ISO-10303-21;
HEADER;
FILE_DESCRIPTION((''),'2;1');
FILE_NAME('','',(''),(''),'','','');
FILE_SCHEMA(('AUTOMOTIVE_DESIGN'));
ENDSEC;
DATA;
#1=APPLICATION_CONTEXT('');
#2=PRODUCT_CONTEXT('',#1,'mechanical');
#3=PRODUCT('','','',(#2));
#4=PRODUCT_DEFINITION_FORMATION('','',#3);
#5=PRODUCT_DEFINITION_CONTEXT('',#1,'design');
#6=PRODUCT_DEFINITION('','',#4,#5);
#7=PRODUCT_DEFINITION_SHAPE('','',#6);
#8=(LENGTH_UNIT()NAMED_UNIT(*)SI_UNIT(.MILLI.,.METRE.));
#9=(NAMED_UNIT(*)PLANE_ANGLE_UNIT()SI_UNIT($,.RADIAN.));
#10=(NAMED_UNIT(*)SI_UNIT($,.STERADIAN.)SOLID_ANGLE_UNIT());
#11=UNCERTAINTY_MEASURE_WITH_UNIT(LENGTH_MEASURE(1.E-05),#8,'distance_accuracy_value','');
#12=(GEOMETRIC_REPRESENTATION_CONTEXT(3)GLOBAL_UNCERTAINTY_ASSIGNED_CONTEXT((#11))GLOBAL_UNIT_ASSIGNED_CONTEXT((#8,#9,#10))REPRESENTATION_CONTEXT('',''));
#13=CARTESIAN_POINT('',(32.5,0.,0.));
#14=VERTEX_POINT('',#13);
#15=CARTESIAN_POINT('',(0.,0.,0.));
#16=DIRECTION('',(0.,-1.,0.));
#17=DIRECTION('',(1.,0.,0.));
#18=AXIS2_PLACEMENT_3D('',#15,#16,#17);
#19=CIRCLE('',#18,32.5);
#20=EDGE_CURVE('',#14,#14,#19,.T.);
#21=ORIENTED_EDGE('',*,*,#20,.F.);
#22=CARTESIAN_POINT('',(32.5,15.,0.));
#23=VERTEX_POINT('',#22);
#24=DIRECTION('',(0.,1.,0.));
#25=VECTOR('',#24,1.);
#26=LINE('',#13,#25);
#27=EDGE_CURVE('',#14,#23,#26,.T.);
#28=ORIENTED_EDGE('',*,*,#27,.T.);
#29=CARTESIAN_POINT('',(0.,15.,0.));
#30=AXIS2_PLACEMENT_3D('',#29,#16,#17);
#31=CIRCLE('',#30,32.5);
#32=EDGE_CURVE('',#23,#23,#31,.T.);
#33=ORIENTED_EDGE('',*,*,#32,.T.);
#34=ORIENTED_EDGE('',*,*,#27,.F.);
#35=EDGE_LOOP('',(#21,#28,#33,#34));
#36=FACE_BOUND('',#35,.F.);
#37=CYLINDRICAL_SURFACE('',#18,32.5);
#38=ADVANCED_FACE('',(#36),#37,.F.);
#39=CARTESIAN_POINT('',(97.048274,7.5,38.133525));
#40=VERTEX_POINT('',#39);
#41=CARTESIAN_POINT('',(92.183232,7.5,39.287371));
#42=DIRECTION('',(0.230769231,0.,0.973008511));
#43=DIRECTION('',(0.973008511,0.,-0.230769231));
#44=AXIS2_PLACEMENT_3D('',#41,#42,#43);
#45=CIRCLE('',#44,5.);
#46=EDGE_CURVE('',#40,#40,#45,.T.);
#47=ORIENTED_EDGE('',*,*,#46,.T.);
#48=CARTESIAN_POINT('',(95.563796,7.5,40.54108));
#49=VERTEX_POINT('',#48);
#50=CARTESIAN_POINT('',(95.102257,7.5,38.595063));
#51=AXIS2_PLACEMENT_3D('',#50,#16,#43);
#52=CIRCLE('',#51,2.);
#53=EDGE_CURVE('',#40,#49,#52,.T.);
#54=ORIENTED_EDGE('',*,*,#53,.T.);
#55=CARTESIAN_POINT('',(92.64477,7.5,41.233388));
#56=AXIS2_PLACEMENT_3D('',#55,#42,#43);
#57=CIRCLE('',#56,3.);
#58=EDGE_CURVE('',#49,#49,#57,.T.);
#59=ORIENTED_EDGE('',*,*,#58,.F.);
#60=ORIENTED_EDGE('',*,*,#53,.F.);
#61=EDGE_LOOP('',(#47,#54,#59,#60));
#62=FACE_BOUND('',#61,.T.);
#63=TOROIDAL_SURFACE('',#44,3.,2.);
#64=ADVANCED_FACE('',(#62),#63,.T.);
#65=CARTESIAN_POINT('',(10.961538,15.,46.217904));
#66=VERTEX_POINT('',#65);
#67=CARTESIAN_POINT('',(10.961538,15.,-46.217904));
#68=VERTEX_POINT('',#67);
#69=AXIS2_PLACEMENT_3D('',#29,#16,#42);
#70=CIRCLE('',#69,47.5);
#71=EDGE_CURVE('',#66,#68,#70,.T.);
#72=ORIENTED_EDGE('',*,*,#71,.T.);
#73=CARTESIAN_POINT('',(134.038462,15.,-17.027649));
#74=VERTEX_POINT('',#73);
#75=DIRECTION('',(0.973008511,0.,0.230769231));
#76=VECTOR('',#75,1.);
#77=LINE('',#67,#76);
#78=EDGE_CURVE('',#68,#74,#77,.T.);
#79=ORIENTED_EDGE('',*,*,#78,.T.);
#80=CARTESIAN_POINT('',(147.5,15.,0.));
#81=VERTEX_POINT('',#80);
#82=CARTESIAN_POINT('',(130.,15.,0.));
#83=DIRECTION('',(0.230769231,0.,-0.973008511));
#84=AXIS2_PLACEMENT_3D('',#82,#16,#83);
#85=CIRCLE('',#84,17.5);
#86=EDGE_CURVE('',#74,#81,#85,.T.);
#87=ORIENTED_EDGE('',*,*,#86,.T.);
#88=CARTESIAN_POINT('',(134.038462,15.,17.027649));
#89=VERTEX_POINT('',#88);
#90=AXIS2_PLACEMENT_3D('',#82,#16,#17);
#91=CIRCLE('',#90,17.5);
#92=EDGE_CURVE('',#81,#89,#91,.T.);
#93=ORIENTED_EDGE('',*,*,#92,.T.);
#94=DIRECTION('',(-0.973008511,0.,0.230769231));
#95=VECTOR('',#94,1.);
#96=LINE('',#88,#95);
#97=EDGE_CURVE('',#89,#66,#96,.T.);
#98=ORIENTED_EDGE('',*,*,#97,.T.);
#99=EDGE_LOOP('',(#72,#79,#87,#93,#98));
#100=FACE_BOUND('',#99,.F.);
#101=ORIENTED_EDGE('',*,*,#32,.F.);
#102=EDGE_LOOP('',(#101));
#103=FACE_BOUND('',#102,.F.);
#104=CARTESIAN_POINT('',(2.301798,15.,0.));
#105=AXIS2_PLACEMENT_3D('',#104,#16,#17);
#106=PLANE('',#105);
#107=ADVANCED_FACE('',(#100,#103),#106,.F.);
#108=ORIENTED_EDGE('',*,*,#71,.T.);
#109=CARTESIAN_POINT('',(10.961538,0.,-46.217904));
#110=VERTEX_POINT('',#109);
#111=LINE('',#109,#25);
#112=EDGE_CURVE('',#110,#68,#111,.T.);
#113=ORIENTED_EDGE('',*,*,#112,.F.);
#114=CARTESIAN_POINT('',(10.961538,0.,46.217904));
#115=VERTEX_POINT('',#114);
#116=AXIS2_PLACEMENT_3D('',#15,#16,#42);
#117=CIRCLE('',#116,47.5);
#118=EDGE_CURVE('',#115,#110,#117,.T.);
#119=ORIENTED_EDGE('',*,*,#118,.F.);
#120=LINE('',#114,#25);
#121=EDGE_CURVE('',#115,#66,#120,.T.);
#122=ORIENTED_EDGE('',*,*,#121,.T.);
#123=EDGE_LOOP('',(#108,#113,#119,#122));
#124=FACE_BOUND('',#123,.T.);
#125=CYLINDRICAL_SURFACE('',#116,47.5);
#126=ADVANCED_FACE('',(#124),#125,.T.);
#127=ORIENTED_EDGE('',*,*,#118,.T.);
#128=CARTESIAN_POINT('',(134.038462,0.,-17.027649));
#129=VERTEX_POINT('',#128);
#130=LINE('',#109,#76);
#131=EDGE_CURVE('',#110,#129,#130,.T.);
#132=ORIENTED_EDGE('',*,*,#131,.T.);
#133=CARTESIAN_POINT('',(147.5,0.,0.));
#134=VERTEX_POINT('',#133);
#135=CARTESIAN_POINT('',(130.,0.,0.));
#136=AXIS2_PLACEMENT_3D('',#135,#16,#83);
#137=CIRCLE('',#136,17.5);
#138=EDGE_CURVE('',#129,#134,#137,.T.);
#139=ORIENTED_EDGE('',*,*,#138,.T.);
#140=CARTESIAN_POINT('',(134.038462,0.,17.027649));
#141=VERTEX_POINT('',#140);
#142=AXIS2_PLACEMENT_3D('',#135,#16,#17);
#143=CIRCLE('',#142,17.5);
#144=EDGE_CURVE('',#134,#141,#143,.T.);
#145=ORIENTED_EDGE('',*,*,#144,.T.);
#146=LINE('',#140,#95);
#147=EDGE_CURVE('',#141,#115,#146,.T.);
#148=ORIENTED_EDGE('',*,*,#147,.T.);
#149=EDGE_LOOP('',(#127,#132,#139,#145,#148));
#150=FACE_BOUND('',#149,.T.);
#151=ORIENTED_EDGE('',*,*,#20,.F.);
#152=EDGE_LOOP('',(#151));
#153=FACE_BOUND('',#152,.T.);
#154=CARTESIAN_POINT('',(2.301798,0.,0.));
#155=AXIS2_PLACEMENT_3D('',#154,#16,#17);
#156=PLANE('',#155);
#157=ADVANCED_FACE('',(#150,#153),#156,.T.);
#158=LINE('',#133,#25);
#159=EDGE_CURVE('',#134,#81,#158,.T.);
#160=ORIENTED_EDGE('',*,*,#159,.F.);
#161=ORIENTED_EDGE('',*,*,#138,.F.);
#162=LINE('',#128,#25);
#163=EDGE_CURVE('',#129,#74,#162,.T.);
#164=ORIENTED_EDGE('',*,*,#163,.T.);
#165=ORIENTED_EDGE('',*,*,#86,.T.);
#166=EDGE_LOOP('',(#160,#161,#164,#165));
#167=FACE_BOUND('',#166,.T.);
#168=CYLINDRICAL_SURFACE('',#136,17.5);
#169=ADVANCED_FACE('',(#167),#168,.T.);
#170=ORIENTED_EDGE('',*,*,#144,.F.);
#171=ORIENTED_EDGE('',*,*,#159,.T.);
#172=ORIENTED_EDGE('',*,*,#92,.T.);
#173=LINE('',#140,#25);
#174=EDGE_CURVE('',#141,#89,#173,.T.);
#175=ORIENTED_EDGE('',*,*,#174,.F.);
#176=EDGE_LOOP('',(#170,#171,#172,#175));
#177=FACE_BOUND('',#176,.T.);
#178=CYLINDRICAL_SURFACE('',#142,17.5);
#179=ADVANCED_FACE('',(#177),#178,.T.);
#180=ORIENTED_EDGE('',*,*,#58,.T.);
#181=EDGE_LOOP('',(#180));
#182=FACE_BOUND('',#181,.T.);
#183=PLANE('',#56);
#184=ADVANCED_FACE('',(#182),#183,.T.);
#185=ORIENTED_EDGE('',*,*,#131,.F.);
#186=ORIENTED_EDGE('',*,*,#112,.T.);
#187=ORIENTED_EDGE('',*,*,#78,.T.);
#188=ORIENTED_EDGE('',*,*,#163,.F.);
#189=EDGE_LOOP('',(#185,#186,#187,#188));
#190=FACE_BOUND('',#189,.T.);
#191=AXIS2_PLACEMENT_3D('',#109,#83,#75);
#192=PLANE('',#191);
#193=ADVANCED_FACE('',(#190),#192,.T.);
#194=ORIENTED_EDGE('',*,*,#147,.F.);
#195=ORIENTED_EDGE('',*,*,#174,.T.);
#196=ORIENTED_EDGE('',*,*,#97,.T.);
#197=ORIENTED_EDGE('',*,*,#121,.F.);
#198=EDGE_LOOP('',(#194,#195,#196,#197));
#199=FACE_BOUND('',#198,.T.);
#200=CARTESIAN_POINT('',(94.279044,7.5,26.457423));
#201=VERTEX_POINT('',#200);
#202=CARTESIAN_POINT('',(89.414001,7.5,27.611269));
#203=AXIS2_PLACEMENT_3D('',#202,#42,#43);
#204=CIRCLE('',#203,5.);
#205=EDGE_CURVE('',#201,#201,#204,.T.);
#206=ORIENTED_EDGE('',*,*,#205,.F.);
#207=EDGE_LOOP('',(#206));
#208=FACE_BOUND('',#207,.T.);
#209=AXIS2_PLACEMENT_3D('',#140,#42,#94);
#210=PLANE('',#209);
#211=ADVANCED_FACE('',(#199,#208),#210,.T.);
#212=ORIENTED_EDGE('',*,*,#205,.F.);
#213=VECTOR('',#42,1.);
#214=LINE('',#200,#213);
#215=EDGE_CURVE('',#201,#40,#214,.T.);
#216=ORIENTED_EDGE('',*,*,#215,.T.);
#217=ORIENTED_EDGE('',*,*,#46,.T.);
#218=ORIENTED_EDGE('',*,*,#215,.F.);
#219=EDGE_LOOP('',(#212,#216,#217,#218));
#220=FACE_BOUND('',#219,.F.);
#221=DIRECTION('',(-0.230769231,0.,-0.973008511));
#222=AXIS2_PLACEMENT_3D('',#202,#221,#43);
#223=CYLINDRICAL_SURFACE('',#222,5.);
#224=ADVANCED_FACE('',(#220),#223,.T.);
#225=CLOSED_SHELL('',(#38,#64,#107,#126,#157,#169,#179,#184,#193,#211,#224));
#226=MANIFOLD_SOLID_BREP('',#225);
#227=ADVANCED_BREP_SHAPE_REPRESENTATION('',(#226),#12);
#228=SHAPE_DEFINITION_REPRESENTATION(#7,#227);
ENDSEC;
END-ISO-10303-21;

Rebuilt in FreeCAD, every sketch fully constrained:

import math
import FreeCAD as App
import Part
import Sketcher

V = App.Vector
Q = App.Units.Quantity


def edges_at(feature, points):
    """Names of the edges that pass closest to the given points."""
    edges = feature.Shape.Edges
    near = lambda p: min(range(len(edges)), key=lambda i: edges[i].distToShape(Part.Vertex(*p))[0])
    return sorted({f"Edge{near(p) + 1}" for p in points})

doc = App.newDocument("Part")
params = doc.addObject("Spreadsheet::Sheet", "Params")
for row, (alias, value) in enumerate([
    ("sketch1_diameter", "65 mm"),
    ("sketch1_radius", "47.5 mm"),
    ("sketch1_radius2", "17.5 mm"),
    ("pad1_length", "15 mm"),
    ("sketch2_diameter", "10 mm"),
    ("pad2_length", "14 mm"),
    ("fillet_radius", "2 mm"),
], start=1):
    params.set(f"A{row}", alias)
    params.set(f"B{row}", "=" + value)
    params.setAlias(f"B{row}", alias)

body = doc.addObject("PartDesign::Body", "Body")

sketch1 = body.newObject("Sketcher::SketchObject", "Sketch")
sketch1.AttachmentSupport = (doc.getObject("XZ_Plane"), [""])
sketch1.MapMode = "FlatFace"
sketch1.addGeometry([
    Part.ArcOfCircle(Part.Circle(V(0, 0, 0), V(0, 0, 1), 48), math.radians(77), math.radians(283)),
    Part.LineSegment(V(11, -46, 0), V(134, -17, 0)),
    Part.ArcOfCircle(Part.Circle(V(130, 0, 0), V(0, 0, 1), 18), math.radians(-77), math.radians(0)),
    Part.ArcOfCircle(Part.Circle(V(130, 0, 0), V(0, 0, 1), 18), math.radians(0), math.radians(77)),
    Part.LineSegment(V(134, 17, 0), V(11, 46, 0)),
    Part.Circle(V(0, 0, 0), V(0, 0, 1), 32),
], False)
sketch1.addConstraint([
    Sketcher.Constraint("Tangent", 0, 2, 1, 1),
    Sketcher.Constraint("Tangent", 1, 2, 2, 1),
    Sketcher.Constraint("Tangent", 2, 2, 3, 1),
    Sketcher.Constraint("Tangent", 3, 2, 4, 1),
    Sketcher.Constraint("Tangent", 4, 2, 0, 1),
    Sketcher.Constraint("Coincident", 0, 3, -1, 1),
    Sketcher.Constraint("Coincident", 5, 3, -1, 1),
    Sketcher.Constraint("Equal", 2, 3),
    Sketcher.Constraint("PointOnObject", 2, 3, -1),
    Sketcher.Constraint("PointOnObject", 2, 2, -1),
    Sketcher.Constraint("Diameter", 5, Q("65 mm")),
    Sketcher.Constraint("Radius", 0, Q("47.5 mm")),
    Sketcher.Constraint("Radius", 2, Q("17.5 mm")),
    Sketcher.Constraint("DistanceX", -1, 1, 2, 3, Q("130 mm")),
])
sketch1.setExpression("Constraints[10]", "Params.sketch1_diameter")
sketch1.setExpression("Constraints[11]", "Params.sketch1_radius")
sketch1.setExpression("Constraints[12]", "Params.sketch1_radius2")
pad1 = body.newObject("PartDesign::Pad", "Pad")
pad1.Profile = sketch1
pad1.setExpression("Length", "Params.pad1_length")
pad1.Reversed = True

sketch2 = body.newObject("Sketcher::SketchObject", "Sketch001")
sketch2.Placement = App.Placement(V(10.961538, 0, 46.217904), App.Rotation(V(0.973008511, 0, -0.230769231), V(0, 1, 0), V(0.230769231, 0, 0.973008511), "ZXY"))
sketch2.addGeometry(Part.Circle(V(81, 8, 0), V(0, 0, 1), 5), False)
sketch2.addConstraint([
    Sketcher.Constraint("Diameter", 0, Q("10 mm")),
    Sketcher.Constraint("DistanceY", -1, 1, 0, 3, Q("7.5 mm")),
    Sketcher.Constraint("DistanceX", -1, 1, 0, 3, Q("80.628753 mm")),
])
sketch2.setExpression("Constraints[0]", "Params.sketch2_diameter")
pad2 = body.newObject("PartDesign::Pad", "Pad001")
pad2.Profile = sketch2
pad2.setExpression("Length", "Params.pad2_length")
doc.recompute()

fillet = body.newObject("PartDesign::Fillet", "Fillet")
fillet.Base = (pad2, edges_at(pad2, [(87.78, 7.5, 42.387)]))
fillet.setExpression("Radius", "Params.fillet_radius")

doc.recompute()
